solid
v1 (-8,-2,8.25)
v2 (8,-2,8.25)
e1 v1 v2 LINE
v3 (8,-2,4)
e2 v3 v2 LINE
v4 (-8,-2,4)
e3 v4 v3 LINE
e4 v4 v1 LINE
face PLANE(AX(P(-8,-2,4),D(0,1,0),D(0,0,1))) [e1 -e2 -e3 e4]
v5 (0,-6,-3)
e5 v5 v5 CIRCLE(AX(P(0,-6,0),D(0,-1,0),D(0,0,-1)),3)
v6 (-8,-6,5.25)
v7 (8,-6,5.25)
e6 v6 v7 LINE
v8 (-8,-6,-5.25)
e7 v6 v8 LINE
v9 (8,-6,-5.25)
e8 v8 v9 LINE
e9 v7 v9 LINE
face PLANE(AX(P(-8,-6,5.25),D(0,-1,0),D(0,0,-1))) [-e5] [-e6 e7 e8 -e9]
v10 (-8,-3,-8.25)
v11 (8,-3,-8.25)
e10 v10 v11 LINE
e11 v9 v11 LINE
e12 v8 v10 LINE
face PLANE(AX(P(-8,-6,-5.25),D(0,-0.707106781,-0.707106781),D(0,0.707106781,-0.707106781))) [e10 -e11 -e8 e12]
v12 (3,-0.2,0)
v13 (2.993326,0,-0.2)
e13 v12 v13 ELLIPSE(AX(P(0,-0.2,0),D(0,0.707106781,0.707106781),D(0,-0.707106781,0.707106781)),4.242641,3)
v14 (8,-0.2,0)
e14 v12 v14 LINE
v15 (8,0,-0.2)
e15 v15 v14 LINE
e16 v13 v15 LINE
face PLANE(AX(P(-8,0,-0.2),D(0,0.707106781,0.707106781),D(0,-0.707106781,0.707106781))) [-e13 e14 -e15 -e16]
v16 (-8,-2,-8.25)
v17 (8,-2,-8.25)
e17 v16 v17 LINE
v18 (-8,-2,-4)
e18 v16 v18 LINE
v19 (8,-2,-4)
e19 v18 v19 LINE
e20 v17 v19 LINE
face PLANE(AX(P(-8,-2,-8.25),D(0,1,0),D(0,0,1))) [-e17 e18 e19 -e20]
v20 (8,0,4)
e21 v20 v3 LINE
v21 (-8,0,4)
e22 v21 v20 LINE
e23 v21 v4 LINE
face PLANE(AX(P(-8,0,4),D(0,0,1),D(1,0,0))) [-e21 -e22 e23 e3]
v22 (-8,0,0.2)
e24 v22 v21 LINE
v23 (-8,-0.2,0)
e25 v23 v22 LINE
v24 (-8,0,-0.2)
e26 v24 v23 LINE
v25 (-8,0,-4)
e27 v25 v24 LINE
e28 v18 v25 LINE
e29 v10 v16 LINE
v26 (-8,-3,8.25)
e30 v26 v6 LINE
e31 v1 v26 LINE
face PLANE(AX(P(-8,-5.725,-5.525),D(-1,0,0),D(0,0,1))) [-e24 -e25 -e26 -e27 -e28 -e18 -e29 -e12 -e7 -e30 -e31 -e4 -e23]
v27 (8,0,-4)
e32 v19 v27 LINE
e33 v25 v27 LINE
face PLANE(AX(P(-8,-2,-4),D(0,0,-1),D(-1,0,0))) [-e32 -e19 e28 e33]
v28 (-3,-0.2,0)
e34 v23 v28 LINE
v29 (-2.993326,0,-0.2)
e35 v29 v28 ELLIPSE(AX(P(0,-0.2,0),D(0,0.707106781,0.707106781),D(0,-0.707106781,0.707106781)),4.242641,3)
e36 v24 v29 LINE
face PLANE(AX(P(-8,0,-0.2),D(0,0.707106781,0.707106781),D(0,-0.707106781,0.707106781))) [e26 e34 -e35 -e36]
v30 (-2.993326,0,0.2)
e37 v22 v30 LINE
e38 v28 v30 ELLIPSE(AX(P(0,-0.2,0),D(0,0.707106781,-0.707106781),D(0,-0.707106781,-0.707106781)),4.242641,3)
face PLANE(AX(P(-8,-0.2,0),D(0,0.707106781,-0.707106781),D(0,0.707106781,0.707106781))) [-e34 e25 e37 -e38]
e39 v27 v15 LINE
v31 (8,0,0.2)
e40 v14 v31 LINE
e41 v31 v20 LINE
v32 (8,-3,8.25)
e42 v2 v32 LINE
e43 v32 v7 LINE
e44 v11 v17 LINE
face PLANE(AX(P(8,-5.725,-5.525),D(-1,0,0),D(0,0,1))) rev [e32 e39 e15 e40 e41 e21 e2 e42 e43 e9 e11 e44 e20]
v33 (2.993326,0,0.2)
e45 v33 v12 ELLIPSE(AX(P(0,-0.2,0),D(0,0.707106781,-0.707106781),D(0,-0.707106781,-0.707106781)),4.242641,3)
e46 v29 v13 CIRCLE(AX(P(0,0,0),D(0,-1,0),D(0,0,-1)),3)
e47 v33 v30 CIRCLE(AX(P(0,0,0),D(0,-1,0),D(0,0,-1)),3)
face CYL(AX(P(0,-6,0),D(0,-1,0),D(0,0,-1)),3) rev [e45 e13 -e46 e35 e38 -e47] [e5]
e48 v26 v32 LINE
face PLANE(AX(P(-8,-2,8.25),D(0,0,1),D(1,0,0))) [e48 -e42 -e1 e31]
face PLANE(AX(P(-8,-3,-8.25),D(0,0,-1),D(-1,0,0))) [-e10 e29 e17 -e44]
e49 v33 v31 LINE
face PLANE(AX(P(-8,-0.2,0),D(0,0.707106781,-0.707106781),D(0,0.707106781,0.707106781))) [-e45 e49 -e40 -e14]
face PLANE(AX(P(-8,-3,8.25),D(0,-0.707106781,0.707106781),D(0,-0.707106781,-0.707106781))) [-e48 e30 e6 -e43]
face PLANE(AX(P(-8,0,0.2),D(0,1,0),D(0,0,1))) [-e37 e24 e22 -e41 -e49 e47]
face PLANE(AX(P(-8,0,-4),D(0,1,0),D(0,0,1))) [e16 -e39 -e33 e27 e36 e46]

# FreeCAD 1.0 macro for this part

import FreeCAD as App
import Part
import Sketcher

doc = App.newDocument("Part")
body = doc.addObject("PartDesign::Body", "Body")

sketch1 = body.newObject("Sketcher::SketchObject", "Sketch")
sketch1.AttachmentSupport = (doc.getObject("YZ_Plane"), [""])
sketch1.MapMode = "FlatFace"
sketch1.AttachmentOffset = App.Placement(App.Vector(0, 0, 8), App.Rotation())
sketch1.addGeometry(Part.LineSegment(App.Vector(0, 0.2, 0), App.Vector(0, 4, 0)), False)
sketch1.addGeometry(Part.LineSegment(App.Vector(0, 4, 0), App.Vector(-2, 4, 0)), False)
sketch1.addGeometry(Part.LineSegment(App.Vector(-2, 4, 0), App.Vector(-2, 8.25, 0)), False)
sketch1.addGeometry(Part.LineSegment(App.Vector(-2, 8.25, 0), App.Vector(-3, 8.25, 0)), False)
sketch1.addGeometry(Part.LineSegment(App.Vector(-3, 8.25, 0), App.Vector(-6, 5.25, 0)), False)
sketch1.addGeometry(Part.LineSegment(App.Vector(-6, 5.25, 0), App.Vector(-6, -5.25, 0)), False)
sketch1.addGeometry(Part.LineSegment(App.Vector(-6, -5.25, 0), App.Vector(-3, -8.25, 0)), False)
sketch1.addGeometry(Part.LineSegment(App.Vector(-3, -8.25, 0), App.Vector(-2, -8.25, 0)), False)
sketch1.addGeometry(Part.LineSegment(App.Vector(-2, -8.25, 0), App.Vector(-2, -4, 0)), False)
sketch1.addGeometry(Part.LineSegment(App.Vector(-2, -4, 0), App.Vector(0, -4, 0)), False)
sketch1.addGeometry(Part.LineSegment(App.Vector(0, -4, 0), App.Vector(0, -0.2, 0)), False)
sketch1.addGeometry(Part.LineSegment(App.Vector(0, -0.2, 0), App.Vector(-0.2, 0, 0)), False)
sketch1.addGeometry(Part.LineSegment(App.Vector(-0.2, 0, 0), App.Vector(0, 0.2, 0)), False)
sketch1.addConstraint(Sketcher.Constraint("Coincident", 0, 2, 1, 1))
sketch1.addConstraint(Sketcher.Constraint("Coincident", 1, 2, 2, 1))
sketch1.addConstraint(Sketcher.Constraint("Coincident", 2, 2, 3, 1))
sketch1.addConstraint(Sketcher.Constraint("Coincident", 3, 2, 4, 1))
sketch1.addConstraint(Sketcher.Constraint("Coincident", 4, 2, 5, 1))
sketch1.addConstraint(Sketcher.Constraint("Coincident", 5, 2, 6, 1))
sketch1.addConstraint(Sketcher.Constraint("Coincident", 6, 2, 7, 1))
sketch1.addConstraint(Sketcher.Constraint("Coincident", 7, 2, 8, 1))
sketch1.addConstraint(Sketcher.Constraint("Coincident", 8, 2, 9, 1))
sketch1.addConstraint(Sketcher.Constraint("Coincident", 9, 2, 10, 1))
sketch1.addConstraint(Sketcher.Constraint("Coincident", 10, 2, 11, 1))
sketch1.addConstraint(Sketcher.Constraint("Coincident", 11, 2, 12, 1))
sketch1.addConstraint(Sketcher.Constraint("Coincident", 12, 2, 0, 1))
sketch1.addConstraint(Sketcher.Constraint("Vertical", 0))
sketch1.addConstraint(Sketcher.Constraint("Horizontal", 1))
sketch1.addConstraint(Sketcher.Constraint("Vertical", 2))
sketch1.addConstraint(Sketcher.Constraint("Horizontal", 3))
sketch1.addConstraint(Sketcher.Constraint("Vertical", 5))
sketch1.addConstraint(Sketcher.Constraint("Horizontal", 7))
sketch1.addConstraint(Sketcher.Constraint("Vertical", 8))
sketch1.addConstraint(Sketcher.Constraint("Horizontal", 9))
sketch1.addConstraint(Sketcher.Constraint("Vertical", 10))
sketch1.addConstraint(Sketcher.Constraint("Symmetric", 0, 2, 9, 2, -1, 1))
sketch1.addConstraint(Sketcher.Constraint("Symmetric", 3, 2, 6, 2, -1))
sketch1.addConstraint(Sketcher.Constraint("Symmetric", 10, 2, 12, 2, -1))
sketch1.addConstraint(Sketcher.Constraint("PointOnObject", 11, 2, -1))
sketch1.addConstraint(Sketcher.Constraint("Perpendicular", 4, 6))
sketch1.addConstraint(Sketcher.Constraint("Parallel", 6, 11))
sketch1.addConstraint(Sketcher.Constraint("Perpendicular", 11, 12))
sketch1.addConstraint(Sketcher.Constraint("Vertical", 2, 2, 7, 2))
sketch1.addConstraint(Sketcher.Constraint("DistanceX", 1, 2, 1, 1, 2.0))
sketch1.addConstraint(Sketcher.Constraint("DistanceX", 3, 2, 3, 1, 1.0))
sketch1.addConstraint(Sketcher.Constraint("DistanceY", 0, 1, 0, 2, 3.8))
sketch1.addConstraint(Sketcher.Constraint("DistanceY", 5, 2, 5, 1, 10.5))
sketch1.addConstraint(Sketcher.Constraint("DistanceY", -1, 1, 0, 2, 4.0))
sketch1.addConstraint(Sketcher.Constraint("DistanceX", 4, 2, -1, 1, 6.0))
pad1 = body.newObject("PartDesign::Pad", "Pad")
pad1.Profile = sketch1
pad1.Length = 16
pad1.Reversed = True

sketch2 = body.newObject("Sketcher::SketchObject", "Sketch001")
sketch2.AttachmentSupport = (doc.getObject("XZ_Plane"), [""])
sketch2.MapMode = "FlatFace"
sketch2.AttachmentOffset = App.Placement(App.Vector(0, 0, 6), App.Rotation())
sketch2.addGeometry(Part.Circle(App.Vector(0, 0, 0), App.Vector(0, 0, 1), 3), False)
sketch2.addConstraint(Sketcher.Constraint("Coincident", 0, 3, -1, 1))
sketch2.addConstraint(Sketcher.Constraint("Diameter", 0, 6.0))
doc.recompute()
hole = body.newObject("PartDesign::Hole", "Hole")
hole.Profile = sketch2
hole.ThreadType = "None"
hole.Diameter = 6
hole.DepthType = "Dimension"
hole.Depth = 6
hole.DrillPoint = "Flat"

doc.recompute()
